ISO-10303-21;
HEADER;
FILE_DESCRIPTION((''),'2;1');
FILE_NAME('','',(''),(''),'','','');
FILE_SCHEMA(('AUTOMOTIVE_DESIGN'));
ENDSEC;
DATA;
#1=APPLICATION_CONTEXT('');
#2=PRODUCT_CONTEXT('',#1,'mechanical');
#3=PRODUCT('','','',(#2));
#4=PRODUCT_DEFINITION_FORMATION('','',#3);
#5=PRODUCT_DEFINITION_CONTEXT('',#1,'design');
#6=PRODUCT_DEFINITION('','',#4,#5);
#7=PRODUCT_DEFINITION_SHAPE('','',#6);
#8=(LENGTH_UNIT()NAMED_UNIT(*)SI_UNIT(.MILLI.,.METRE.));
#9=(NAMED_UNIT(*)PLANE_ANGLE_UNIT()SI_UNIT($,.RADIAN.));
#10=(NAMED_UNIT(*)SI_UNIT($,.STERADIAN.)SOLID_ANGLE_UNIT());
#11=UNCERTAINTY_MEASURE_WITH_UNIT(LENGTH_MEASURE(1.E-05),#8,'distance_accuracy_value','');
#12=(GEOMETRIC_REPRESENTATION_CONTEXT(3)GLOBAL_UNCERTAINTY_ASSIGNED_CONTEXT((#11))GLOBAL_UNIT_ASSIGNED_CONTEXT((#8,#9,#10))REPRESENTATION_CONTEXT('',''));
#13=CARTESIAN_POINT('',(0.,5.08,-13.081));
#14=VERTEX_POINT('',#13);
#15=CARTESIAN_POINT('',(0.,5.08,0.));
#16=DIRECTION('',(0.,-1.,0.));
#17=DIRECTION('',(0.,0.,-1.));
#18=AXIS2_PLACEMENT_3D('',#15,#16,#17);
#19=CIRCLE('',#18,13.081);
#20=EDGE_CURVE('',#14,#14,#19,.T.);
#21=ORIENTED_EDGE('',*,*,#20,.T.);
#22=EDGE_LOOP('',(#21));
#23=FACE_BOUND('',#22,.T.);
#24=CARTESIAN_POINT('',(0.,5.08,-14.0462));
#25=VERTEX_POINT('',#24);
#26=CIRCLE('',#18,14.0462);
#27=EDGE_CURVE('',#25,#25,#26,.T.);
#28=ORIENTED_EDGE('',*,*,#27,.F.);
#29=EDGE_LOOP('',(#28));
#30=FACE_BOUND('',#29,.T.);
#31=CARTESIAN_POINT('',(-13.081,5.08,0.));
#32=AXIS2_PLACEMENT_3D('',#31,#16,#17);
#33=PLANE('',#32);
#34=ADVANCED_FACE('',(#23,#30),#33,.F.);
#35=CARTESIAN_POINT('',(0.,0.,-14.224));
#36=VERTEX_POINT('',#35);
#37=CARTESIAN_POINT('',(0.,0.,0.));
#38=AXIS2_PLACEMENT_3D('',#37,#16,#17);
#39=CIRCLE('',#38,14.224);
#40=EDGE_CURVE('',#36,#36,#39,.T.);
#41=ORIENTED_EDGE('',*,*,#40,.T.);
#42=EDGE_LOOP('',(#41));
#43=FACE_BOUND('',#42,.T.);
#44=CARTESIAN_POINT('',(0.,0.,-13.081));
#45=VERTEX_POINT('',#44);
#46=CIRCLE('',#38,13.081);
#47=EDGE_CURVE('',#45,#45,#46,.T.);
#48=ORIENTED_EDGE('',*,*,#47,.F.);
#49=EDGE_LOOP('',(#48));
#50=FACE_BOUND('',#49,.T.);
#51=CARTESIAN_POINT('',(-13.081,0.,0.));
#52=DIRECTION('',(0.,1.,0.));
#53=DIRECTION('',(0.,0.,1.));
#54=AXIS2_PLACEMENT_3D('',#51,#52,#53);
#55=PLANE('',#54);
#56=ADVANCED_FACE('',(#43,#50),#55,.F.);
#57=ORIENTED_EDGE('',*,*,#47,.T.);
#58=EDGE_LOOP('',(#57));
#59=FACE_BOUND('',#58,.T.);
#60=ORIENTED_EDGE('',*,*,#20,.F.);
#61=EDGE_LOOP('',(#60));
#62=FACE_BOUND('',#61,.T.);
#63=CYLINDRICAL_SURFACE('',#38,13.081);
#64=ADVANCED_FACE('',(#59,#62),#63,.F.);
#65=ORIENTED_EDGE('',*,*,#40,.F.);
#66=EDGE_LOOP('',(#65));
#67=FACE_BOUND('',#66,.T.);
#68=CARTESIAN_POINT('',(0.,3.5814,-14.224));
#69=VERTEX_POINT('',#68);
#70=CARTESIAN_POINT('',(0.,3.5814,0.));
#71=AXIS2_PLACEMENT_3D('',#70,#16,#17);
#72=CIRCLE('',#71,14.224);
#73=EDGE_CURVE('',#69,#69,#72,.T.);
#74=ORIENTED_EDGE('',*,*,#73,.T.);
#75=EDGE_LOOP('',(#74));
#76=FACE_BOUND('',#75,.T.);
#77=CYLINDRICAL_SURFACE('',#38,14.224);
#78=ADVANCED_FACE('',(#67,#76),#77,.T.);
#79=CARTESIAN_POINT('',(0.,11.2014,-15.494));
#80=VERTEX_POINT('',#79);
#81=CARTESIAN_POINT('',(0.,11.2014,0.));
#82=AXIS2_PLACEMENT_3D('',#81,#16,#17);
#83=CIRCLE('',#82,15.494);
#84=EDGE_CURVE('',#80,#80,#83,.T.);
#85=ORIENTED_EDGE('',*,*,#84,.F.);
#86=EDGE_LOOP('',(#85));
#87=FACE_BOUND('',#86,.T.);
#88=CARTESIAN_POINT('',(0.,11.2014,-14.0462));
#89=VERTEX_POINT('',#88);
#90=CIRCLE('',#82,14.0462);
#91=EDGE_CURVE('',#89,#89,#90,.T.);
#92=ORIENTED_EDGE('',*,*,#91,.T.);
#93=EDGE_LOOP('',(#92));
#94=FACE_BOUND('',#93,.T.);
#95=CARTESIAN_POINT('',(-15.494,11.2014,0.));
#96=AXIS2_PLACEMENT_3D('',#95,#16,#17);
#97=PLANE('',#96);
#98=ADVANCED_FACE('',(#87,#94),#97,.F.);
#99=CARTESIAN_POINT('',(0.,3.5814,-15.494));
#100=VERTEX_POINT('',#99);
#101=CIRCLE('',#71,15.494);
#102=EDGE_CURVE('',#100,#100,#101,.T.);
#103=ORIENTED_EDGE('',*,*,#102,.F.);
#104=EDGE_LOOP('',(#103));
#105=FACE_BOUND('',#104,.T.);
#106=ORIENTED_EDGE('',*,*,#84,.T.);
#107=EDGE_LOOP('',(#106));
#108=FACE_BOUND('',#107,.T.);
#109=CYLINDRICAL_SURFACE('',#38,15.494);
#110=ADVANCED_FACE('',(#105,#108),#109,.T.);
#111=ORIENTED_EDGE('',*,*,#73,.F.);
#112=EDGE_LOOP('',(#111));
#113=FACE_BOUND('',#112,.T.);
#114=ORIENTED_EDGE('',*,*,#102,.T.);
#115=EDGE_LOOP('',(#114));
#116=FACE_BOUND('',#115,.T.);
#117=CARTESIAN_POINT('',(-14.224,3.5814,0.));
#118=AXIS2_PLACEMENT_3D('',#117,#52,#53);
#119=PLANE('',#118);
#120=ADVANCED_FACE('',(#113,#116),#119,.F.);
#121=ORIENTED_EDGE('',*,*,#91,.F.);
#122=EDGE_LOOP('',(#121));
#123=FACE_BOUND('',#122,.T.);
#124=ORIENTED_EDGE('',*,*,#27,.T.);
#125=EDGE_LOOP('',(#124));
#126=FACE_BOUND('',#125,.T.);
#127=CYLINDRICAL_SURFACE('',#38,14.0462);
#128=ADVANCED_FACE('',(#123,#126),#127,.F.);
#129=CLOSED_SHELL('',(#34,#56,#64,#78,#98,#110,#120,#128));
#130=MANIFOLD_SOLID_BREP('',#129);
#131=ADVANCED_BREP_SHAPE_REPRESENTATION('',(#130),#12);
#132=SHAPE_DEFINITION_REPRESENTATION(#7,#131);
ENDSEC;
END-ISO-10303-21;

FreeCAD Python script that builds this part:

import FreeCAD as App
import Part
import Sketcher
Q = App.Units.Quantity

doc = App.newDocument("Part")
body = doc.addObject("PartDesign::Body", "Body")

# Sketch on XY plane
sketch1 = body.newObject("Sketcher::SketchObject", "Sketch")
sketch1.AttachmentSupport = (doc.getObject("XY_Plane"), [""])
sketch1.MapMode = "FlatFace"
sketch1.addGeometry(Part.LineSegment(App.Vector(-14.2, 0, 0), App.Vector(-13.1, 0, 0)), False)
sketch1.addGeometry(Part.LineSegment(App.Vector(-13.1, 0, 0), App.Vector(-13.1, 5.1, 0)), False)
sketch1.addGeometry(Part.LineSegment(App.Vector(-13.1, 5.1, 0), App.Vector(-14, 5.1, 0)), False)
sketch1.addGeometry(Part.LineSegment(App.Vector(-14, 5.1, 0), App.Vector(-14, 11.2, 0)), False)
sketch1.addGeometry(Part.LineSegment(App.Vector(-14, 11.2, 0), App.Vector(-15.5, 11.2, 0)), False)
sketch1.addGeometry(Part.LineSegment(App.Vector(-15.5, 11.2, 0), App.Vector(-15.5, 3.6, 0)), False)
sketch1.addGeometry(Part.LineSegment(App.Vector(-15.5, 3.6, 0), App.Vector(-14.2, 3.6, 0)), False)
sketch1.addGeometry(Part.LineSegment(App.Vector(-14.2, 3.6, 0), App.Vector(-14.2, 0, 0)), False)
sketch1.addConstraint(Sketcher.Constraint("Coincident", 0, 2, 1, 1))
sketch1.addConstraint(Sketcher.Constraint("Coincident", 1, 2, 2, 1))
sketch1.addConstraint(Sketcher.Constraint("Coincident", 2, 2, 3, 1))
sketch1.addConstraint(Sketcher.Constraint("Coincident", 3, 2, 4, 1))
sketch1.addConstraint(Sketcher.Constraint("Coincident", 4, 2, 5, 1))
sketch1.addConstraint(Sketcher.Constraint("Coincident", 5, 2, 6, 1))
sketch1.addConstraint(Sketcher.Constraint("Coincident", 6, 2, 7, 1))
sketch1.addConstraint(Sketcher.Constraint("Coincident", 7, 2, 0, 1))
sketch1.addConstraint(Sketcher.Constraint("Horizontal", 0))
sketch1.addConstraint(Sketcher.Constraint("Vertical", 1))
sketch1.addConstraint(Sketcher.Constraint("Horizontal", 2))
sketch1.addConstraint(Sketcher.Constraint("Vertical", 3))
sketch1.addConstraint(Sketcher.Constraint("Horizontal", 4))
sketch1.addConstraint(Sketcher.Constraint("Vertical", 5))
sketch1.addConstraint(Sketcher.Constraint("Horizontal", 6))
sketch1.addConstraint(Sketcher.Constraint("Vertical", 7))
sketch1.addConstraint(Sketcher.Constraint("PointOnObject", 0, 2, -1))
sketch1.addConstraint(Sketcher.Constraint("DistanceY", 1, 1, 1, 2, Q("0.2 in")))
sketch1.addConstraint(Sketcher.Constraint("DistanceY", 5, 2, 5, 1, Q("0.3 in")))
sketch1.addConstraint(Sketcher.Constraint("DistanceX", 6, 1, 6, 2, Q("0.05 in")))
sketch1.addConstraint(Sketcher.Constraint("DistanceX", 0, 1, 0, 2, Q("0.045 in")))
sketch1.addConstraint(Sketcher.Constraint("DistanceX", 2, 2, 2, 1, Q("0.038 in")))
sketch1.addConstraint(Sketcher.Constraint("DistanceY", 3, 1, 3, 2, Q("0.241 in")))
sketch1.addConstraint(Sketcher.Constraint("DistanceX", 4, 2, -1, 1, Q("0.61 in")))
revolution = body.newObject("PartDesign::Revolution", "Revolution")
revolution.Profile = sketch1
revolution.ReferenceAxis = (sketch1, ["V_Axis"])
revolution.Angle = 360

doc.recompute()
